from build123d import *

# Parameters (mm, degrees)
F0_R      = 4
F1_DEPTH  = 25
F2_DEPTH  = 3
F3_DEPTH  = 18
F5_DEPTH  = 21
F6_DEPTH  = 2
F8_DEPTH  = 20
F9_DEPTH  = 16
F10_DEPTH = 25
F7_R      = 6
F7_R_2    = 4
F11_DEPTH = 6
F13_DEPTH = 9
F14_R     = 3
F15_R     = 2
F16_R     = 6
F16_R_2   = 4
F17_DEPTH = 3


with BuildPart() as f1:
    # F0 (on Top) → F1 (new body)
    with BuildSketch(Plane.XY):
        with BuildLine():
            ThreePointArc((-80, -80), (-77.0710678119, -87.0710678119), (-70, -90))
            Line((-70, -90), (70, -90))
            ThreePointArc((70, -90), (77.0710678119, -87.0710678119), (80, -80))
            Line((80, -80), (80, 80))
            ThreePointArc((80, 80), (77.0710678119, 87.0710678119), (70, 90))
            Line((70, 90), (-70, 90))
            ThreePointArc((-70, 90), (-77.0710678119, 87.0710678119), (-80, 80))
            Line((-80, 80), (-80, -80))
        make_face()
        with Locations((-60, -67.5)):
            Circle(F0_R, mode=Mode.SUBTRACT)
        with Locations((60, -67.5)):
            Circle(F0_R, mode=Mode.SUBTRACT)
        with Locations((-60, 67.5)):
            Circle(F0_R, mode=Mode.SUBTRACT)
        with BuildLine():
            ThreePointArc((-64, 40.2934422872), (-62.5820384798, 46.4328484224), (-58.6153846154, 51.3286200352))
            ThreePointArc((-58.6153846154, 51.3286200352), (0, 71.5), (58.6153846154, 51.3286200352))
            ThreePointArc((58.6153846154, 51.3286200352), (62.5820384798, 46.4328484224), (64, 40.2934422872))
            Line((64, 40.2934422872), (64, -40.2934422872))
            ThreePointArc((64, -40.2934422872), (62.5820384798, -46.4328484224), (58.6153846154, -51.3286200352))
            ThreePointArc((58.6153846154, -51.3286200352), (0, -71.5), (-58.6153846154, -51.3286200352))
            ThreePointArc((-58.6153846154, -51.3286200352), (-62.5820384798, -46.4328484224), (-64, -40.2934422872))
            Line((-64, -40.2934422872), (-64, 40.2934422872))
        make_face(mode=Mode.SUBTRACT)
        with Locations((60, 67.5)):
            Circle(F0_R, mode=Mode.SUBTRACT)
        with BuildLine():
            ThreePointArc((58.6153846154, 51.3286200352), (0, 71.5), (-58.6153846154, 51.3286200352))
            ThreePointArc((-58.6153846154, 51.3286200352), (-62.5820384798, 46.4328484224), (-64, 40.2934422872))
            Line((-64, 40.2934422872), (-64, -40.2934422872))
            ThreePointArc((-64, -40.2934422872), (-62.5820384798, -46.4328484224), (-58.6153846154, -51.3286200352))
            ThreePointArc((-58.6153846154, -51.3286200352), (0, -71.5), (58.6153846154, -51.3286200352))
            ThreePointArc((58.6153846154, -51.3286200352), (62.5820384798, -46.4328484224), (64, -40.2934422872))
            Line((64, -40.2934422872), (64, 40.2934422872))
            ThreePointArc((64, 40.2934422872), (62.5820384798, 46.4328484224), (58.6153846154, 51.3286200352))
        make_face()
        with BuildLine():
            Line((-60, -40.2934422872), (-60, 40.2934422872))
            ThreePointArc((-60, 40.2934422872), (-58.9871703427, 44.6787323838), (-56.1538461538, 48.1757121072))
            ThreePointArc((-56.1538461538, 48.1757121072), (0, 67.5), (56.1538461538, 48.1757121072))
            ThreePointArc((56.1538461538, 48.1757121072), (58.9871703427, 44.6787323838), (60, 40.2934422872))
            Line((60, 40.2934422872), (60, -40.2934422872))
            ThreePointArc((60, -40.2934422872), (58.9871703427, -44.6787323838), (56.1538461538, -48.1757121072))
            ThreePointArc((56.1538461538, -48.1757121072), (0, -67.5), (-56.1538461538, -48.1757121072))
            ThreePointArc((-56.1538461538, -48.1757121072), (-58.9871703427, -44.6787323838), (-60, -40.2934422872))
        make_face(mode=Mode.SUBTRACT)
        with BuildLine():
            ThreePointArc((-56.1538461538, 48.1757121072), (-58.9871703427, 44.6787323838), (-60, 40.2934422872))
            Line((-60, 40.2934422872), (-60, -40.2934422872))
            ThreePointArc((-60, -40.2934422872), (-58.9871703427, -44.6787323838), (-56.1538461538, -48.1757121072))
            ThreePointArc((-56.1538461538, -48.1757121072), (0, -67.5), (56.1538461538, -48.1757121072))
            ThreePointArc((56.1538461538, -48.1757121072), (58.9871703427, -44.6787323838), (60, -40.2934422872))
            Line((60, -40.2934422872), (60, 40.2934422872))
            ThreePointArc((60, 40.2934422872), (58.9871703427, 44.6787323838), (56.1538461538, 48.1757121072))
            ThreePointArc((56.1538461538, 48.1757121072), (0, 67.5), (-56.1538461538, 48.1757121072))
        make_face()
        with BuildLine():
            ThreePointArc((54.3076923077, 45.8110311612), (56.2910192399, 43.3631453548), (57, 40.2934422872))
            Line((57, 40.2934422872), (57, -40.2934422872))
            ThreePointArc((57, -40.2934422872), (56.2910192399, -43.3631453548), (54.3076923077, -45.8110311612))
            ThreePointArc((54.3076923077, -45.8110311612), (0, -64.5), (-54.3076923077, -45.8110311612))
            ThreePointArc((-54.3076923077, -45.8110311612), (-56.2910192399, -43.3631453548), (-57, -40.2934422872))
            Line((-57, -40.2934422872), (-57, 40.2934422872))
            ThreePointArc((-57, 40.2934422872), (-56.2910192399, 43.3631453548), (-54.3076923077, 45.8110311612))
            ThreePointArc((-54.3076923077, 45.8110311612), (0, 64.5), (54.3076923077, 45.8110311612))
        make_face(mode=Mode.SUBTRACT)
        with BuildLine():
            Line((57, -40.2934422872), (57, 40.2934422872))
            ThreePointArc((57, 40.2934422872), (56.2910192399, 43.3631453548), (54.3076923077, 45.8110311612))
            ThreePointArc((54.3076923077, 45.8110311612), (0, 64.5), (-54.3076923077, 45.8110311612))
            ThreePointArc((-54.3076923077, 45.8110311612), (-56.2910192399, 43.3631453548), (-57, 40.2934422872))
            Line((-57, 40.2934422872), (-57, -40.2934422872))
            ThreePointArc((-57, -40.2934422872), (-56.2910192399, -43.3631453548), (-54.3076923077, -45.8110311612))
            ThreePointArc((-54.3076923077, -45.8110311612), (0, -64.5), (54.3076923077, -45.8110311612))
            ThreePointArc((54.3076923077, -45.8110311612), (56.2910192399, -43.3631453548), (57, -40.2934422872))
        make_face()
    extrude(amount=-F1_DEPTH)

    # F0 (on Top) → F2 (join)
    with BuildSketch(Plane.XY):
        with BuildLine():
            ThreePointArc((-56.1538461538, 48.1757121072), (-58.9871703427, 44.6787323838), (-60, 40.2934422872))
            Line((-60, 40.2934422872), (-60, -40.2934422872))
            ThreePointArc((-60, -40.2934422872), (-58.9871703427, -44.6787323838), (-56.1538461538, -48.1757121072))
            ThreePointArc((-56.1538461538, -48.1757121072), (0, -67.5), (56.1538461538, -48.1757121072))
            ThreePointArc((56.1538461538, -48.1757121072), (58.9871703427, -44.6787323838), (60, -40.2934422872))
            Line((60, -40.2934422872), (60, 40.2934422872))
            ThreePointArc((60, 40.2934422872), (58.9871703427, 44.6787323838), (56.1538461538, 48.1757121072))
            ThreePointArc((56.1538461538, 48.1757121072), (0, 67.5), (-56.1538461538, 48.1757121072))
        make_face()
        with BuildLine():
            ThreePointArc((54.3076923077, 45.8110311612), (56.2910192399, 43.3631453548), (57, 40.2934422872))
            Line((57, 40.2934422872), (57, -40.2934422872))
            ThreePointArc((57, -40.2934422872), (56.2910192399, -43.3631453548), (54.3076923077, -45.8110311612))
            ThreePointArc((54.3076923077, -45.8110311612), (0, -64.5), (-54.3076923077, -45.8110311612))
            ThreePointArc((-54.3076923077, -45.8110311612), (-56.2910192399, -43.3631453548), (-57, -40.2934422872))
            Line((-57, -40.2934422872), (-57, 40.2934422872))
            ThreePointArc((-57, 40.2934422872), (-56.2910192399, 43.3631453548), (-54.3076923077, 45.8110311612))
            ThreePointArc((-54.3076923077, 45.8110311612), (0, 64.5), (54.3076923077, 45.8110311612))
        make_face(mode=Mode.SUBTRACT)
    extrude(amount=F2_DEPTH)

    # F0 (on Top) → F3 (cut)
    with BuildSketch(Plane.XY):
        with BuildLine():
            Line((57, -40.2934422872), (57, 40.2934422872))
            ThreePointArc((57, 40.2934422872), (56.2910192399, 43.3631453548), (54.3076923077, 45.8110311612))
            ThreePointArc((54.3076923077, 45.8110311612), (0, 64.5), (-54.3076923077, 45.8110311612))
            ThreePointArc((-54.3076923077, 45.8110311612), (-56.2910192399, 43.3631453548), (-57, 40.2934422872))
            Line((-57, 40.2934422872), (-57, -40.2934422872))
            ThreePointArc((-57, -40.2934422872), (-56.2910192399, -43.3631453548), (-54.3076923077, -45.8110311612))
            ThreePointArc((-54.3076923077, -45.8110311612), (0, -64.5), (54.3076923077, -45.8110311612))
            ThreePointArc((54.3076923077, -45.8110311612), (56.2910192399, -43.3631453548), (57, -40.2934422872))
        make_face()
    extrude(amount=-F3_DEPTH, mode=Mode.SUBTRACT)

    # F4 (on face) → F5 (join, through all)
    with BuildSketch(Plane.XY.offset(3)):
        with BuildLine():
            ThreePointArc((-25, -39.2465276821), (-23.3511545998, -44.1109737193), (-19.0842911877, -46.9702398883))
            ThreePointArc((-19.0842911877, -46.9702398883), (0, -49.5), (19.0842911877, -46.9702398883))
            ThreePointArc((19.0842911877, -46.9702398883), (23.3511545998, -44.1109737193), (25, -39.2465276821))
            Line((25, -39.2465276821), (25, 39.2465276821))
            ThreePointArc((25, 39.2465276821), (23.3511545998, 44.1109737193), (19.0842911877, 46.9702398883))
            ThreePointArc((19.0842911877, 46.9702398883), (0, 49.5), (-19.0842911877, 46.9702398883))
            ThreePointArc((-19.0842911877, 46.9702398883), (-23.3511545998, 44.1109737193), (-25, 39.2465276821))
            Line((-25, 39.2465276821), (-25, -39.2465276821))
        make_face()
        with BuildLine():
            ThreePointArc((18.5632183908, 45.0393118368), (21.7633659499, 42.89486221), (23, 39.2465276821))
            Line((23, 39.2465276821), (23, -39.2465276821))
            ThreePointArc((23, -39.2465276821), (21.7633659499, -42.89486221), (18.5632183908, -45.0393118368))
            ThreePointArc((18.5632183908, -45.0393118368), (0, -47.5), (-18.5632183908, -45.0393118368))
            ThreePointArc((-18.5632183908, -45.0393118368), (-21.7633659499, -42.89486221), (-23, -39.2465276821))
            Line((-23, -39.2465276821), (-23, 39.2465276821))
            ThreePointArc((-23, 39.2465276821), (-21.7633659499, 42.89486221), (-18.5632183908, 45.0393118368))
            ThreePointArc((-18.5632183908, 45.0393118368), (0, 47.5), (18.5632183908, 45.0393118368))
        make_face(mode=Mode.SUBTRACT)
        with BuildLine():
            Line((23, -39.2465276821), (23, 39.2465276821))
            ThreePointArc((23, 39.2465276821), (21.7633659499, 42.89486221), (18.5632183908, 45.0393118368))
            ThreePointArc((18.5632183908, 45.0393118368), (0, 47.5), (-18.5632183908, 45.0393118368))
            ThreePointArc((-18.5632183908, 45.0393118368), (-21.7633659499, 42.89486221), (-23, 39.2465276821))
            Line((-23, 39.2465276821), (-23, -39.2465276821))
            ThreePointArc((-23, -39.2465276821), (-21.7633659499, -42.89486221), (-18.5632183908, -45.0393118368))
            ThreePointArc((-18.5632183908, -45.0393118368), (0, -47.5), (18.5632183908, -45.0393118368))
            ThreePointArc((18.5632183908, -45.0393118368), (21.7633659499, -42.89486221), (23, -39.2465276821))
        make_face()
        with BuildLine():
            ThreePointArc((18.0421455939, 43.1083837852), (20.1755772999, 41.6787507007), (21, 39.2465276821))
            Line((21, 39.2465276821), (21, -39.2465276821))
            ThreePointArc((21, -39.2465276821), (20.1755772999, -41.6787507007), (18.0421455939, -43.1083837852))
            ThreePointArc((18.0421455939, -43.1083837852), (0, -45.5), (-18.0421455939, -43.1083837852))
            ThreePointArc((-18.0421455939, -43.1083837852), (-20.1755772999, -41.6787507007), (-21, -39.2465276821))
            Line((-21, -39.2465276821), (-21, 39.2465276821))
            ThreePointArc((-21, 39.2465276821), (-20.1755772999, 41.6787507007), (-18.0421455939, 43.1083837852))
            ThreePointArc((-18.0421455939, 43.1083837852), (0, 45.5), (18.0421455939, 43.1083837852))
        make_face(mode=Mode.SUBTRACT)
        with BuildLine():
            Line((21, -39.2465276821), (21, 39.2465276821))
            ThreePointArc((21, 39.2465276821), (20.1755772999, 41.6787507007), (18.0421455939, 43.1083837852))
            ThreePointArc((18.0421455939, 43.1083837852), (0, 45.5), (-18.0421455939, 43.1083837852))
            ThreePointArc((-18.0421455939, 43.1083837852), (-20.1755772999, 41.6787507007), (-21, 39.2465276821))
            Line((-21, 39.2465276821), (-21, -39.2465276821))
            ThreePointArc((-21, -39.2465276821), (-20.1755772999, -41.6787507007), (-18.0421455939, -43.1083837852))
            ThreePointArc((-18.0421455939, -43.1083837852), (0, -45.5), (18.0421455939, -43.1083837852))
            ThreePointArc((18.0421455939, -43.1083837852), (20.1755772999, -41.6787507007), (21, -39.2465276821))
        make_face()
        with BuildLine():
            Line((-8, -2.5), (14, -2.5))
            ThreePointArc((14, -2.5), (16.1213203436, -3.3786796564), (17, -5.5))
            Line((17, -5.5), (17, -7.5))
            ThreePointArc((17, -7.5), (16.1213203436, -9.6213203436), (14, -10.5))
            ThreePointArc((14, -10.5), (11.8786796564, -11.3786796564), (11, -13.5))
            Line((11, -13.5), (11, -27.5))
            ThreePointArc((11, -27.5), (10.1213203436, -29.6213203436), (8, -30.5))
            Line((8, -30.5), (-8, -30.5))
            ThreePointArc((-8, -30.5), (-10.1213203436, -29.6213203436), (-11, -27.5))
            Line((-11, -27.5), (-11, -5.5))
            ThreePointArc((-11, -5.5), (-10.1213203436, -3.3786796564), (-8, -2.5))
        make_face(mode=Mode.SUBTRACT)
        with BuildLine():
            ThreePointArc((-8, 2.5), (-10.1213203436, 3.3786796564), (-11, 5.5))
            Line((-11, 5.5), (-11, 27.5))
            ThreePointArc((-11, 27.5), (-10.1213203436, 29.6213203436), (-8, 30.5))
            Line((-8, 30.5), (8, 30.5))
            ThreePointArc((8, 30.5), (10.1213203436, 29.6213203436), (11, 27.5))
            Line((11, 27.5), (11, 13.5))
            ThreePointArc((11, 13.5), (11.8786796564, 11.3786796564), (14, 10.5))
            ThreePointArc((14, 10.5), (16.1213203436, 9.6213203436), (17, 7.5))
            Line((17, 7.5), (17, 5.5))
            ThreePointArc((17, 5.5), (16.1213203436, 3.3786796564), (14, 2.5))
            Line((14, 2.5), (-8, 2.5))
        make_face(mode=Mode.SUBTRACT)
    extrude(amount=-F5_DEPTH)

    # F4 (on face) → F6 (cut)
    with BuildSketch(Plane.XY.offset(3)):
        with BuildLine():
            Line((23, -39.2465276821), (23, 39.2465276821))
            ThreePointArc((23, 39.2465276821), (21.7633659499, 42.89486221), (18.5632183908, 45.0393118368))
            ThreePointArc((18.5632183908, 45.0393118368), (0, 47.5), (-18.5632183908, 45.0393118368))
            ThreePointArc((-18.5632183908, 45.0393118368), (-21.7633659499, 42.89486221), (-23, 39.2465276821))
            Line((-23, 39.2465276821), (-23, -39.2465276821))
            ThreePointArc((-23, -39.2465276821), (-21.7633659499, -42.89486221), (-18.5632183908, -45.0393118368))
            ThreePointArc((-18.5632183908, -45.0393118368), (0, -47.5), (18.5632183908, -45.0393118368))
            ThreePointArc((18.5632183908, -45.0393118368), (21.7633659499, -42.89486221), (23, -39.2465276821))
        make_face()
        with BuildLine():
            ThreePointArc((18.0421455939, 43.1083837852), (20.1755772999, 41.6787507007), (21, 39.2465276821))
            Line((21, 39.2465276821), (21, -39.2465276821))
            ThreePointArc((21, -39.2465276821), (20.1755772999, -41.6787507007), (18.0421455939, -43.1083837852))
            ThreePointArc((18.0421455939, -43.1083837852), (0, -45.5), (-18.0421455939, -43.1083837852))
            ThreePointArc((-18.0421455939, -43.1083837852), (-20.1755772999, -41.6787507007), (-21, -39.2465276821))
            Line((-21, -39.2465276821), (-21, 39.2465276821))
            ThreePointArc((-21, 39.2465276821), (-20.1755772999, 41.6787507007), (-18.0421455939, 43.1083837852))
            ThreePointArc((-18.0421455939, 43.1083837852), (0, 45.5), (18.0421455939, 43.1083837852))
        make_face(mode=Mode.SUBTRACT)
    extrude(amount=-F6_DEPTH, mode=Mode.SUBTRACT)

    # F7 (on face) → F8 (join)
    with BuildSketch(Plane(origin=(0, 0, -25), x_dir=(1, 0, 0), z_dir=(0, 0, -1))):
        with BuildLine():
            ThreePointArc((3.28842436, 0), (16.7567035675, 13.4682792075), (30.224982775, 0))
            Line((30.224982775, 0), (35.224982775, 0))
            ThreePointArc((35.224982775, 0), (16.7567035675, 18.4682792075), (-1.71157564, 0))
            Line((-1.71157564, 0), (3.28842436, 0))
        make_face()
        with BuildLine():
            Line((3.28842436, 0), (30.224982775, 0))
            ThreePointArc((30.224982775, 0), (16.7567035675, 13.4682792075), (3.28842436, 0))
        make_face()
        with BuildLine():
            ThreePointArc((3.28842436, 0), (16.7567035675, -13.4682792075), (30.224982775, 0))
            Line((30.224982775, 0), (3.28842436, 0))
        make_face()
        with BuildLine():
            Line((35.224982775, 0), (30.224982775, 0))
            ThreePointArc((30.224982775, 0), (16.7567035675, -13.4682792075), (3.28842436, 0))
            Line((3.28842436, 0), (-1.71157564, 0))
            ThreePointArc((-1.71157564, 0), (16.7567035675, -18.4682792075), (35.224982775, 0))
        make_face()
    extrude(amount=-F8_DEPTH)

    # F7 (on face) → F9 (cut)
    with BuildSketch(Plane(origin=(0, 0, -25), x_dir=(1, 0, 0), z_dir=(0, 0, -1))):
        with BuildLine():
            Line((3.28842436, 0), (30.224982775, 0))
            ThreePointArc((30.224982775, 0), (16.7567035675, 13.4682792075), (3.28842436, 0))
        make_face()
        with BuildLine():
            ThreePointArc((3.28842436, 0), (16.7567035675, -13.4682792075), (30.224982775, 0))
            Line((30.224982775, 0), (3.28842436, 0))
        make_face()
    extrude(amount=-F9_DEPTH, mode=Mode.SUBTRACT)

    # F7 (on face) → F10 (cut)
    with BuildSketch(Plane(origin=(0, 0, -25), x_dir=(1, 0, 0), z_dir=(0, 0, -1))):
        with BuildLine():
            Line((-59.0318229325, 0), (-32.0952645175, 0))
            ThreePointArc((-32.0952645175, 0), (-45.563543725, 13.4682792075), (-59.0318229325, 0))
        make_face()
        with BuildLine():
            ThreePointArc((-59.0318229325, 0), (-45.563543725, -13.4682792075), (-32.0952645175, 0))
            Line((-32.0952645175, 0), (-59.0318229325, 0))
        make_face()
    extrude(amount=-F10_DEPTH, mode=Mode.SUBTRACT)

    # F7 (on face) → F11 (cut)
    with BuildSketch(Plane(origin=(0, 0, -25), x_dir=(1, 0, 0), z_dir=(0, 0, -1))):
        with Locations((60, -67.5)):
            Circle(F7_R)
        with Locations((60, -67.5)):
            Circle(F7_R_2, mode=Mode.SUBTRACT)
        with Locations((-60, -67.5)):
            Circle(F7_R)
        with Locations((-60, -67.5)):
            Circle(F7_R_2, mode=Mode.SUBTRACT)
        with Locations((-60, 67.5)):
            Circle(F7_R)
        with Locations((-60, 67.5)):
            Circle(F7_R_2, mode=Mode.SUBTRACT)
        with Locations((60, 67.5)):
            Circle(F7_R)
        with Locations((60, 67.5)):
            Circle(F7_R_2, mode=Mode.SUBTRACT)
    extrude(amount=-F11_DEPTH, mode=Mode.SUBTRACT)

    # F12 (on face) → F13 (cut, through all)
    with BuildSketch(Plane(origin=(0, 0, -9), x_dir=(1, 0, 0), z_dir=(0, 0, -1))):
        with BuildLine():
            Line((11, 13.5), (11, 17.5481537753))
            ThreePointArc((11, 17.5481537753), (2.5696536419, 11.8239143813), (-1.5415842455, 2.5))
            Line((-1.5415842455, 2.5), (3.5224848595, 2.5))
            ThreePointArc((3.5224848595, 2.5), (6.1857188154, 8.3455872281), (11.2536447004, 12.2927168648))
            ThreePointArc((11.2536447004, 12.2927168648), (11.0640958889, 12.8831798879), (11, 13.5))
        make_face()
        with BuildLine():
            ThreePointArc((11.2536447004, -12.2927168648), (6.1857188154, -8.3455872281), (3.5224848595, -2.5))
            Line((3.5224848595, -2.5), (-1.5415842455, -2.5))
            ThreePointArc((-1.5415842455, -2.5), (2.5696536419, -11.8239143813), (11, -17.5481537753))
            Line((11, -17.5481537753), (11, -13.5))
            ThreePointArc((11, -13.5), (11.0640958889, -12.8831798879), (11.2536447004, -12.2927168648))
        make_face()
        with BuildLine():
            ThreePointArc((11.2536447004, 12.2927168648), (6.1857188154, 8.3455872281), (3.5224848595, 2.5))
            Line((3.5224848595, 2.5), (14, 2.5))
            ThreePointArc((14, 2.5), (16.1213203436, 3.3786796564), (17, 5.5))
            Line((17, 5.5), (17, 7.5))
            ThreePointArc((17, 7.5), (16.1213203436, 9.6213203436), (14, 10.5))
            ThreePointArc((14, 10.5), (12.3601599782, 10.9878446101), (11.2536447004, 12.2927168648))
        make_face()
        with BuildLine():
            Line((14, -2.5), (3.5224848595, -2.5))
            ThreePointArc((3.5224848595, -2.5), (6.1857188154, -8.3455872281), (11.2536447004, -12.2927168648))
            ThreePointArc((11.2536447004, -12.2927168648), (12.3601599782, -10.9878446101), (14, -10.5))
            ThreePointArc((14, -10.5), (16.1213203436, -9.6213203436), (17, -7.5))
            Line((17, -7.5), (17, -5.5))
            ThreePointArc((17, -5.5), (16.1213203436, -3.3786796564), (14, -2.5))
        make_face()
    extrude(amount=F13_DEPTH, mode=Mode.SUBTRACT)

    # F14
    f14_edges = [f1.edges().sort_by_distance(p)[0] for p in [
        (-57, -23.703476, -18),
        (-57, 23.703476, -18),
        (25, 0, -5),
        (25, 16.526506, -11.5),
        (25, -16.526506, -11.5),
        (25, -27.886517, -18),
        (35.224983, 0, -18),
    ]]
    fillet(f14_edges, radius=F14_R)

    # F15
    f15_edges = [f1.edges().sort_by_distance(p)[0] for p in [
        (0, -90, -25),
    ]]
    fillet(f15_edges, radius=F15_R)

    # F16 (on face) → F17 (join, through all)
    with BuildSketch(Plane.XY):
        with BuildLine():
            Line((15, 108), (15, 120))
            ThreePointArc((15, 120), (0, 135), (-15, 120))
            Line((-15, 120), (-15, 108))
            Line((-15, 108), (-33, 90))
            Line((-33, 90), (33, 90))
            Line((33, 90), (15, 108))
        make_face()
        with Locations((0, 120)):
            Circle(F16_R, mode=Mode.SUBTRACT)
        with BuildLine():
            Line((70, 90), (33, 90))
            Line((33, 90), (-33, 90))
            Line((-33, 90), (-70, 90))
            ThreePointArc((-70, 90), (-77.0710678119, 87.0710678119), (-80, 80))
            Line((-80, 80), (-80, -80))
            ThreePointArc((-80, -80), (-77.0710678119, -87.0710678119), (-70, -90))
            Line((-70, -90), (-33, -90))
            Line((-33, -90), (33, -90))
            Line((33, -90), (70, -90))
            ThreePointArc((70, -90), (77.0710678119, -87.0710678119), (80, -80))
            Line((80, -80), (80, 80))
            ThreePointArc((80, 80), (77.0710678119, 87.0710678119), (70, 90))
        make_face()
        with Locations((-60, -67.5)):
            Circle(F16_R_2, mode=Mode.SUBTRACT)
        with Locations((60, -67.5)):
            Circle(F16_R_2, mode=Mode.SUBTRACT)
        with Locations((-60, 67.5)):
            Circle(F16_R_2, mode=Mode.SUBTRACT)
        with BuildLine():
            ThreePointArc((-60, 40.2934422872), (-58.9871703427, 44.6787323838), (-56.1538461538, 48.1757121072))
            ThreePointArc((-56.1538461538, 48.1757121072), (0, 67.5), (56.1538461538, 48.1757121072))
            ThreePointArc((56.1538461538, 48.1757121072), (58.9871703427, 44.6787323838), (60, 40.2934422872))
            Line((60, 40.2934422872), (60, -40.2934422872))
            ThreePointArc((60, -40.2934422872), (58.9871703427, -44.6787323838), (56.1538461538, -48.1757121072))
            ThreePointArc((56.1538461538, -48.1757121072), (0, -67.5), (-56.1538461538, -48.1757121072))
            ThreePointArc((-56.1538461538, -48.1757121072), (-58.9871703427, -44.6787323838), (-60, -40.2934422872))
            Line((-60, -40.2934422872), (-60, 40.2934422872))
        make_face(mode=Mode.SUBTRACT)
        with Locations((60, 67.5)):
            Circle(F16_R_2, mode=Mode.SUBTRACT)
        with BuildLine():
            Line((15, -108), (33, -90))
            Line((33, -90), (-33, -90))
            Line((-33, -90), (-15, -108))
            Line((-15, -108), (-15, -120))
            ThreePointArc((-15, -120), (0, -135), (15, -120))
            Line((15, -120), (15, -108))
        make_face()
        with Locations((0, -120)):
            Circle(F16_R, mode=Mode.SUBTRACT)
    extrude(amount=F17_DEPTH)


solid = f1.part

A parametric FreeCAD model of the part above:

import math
import FreeCAD as App
import Part
import Sketcher

V = App.Vector


def edges_at(feature, points):
    """Names of the edges that pass closest to the given points."""
    edges = feature.Shape.Edges
    near = lambda p: min(range(len(edges)), key=lambda i: edges[i].distToShape(Part.Vertex(*p))[0])
    return sorted({f"Edge{near(p) + 1}" for p in points})

doc = App.newDocument("Part")
body = doc.addObject("PartDesign::Body", "Body")

sketch1 = body.newObject("Sketcher::SketchObject", "Sketch")
sketch1.AttachmentSupport = (doc.getObject("XY_Plane"), [""])
sketch1.MapMode = "FlatFace"
sketch1.addGeometry([
    Part.ArcOfCircle(Part.Circle(V(-70, -80, 0), V(0, 0, 1), 10), math.radians(180), math.radians(270)),
    Part.LineSegment(V(-70, -90, 0), V(70, -90, 0)),
    Part.ArcOfCircle(Part.Circle(V(70, -80, 0), V(0, 0, 1), 10), math.radians(-90), math.radians(0)),
    Part.LineSegment(V(80, -80, 0), V(80, 80, 0)),
    Part.ArcOfCircle(Part.Circle(V(70, 80, 0), V(0, 0, 1), 10), math.radians(0), math.radians(90)),
    Part.LineSegment(V(70, 90, 0), V(-70, 90, 0)),
    Part.ArcOfCircle(Part.Circle(V(-70, 80, 0), V(0, 0, 1), 10), math.radians(90), math.radians(180)),
    Part.LineSegment(V(-80, 80, 0), V(-80, -80, 0)),
    Part.Circle(V(-60, -67.5, 0), V(0, 0, 1), 4),
    Part.Circle(V(60, -67.5, 0), V(0, 0, 1), 4),
    Part.Circle(V(-60, 67.5, 0), V(0, 0, 1), 4),
    Part.Circle(V(60, 67.5, 0), V(0, 0, 1), 4),
], False)
sketch1.addConstraint([
    Sketcher.Constraint("Tangent", 0, 2, 1, 1),
    Sketcher.Constraint("Tangent", 1, 2, 2, 1),
    Sketcher.Constraint("Tangent", 2, 2, 3, 1),
    Sketcher.Constraint("Tangent", 3, 2, 4, 1),
    Sketcher.Constraint("Tangent", 4, 2, 5, 1),
    Sketcher.Constraint("Tangent", 5, 2, 6, 1),
    Sketcher.Constraint("Tangent", 6, 2, 7, 1),
    Sketcher.Constraint("Tangent", 7, 2, 0, 1),
    Sketcher.Constraint("Horizontal", 1),
    Sketcher.Constraint("Vertical", 3),
    Sketcher.Constraint("Horizontal", 5),
    Sketcher.Constraint("Vertical", 7),
    Sketcher.Constraint("Equal", 0, 2),
    Sketcher.Constraint("Equal", 2, 4),
    Sketcher.Constraint("Equal", 4, 6),
    Sketcher.Constraint("Equal", 8, 9),
    Sketcher.Constraint("Equal", 9, 10),
    Sketcher.Constraint("Equal", 10, 11),
    Sketcher.Constraint("Symmetric", 0, 3, 4, 3, -1, 1),
    Sketcher.Constraint("Symmetric", 9, 3, 10, 3, -1, 1),
    Sketcher.Constraint("Symmetric", 8, 3, 11, 3, -1, 1),
    Sketcher.Constraint("Symmetric", 8, 3, 9, 3, -2),
    Sketcher.Constraint("Diameter", 8, 8.0),
    Sketcher.Constraint("Radius", 0, 10.0),
    Sketcher.Constraint("DistanceX", 1, 1, 1, 2, 140.0),
    Sketcher.Constraint("DistanceY", 3, 1, 3, 2, 160.0),
    Sketcher.Constraint("DistanceX", 8, 3, -1, 1, 60.0),
    Sketcher.Constraint("DistanceY", 8, 3, 10, 3, 135.0),
])
pad1 = body.newObject("PartDesign::Pad", "Pad")
pad1.Profile = sketch1
pad1.Length = 25
pad1.Reversed = True

sketch2 = body.newObject("Sketcher::SketchObject", "Sketch001")
sketch2.AttachmentSupport = (doc.getObject("XY_Plane"), [""])
sketch2.MapMode = "FlatFace"
sketch2.addGeometry([
    Part.ArcOfCircle(Part.Circle(V(-50, 40, 0), V(0, 0, 1), 10), math.radians(128), math.radians(180)),
    Part.LineSegment(V(-60, 40, 0), V(-60, -40, 0)),
    Part.ArcOfCircle(Part.Circle(V(-50, -40, 0), V(0, 0, 1), 10), math.radians(180), math.radians(232)),
    Part.ArcOfCircle(Part.Circle(V(0, 24, 0), V(0, 0, 1), 91), math.radians(-128), math.radians(-52)),
    Part.ArcOfCircle(Part.Circle(V(50, -40, 0), V(0, 0, 1), 10), math.radians(-52), math.radians(0)),
    Part.LineSegment(V(60, -40, 0), V(60, 40, 0)),
    Part.ArcOfCircle(Part.Circle(V(50, 40, 0), V(0, 0, 1), 10), math.radians(0), math.radians(52)),
    Part.ArcOfCircle(Part.Circle(V(0, -24, 0), V(0, 0, 1), 91), math.radians(52), math.radians(128)),
    Part.ArcOfCircle(Part.Circle(V(0, -24, 0), V(0, 0, 1), 88), math.radians(52), math.radians(128)),
    Part.ArcOfCircle(Part.Circle(V(50, 40, 0), V(0, 0, 1), 7), math.radians(0), math.radians(52)),
    Part.LineSegment(V(57, 40, 0), V(57, -40, 0)),
    Part.ArcOfCircle(Part.Circle(V(50, -40, 0), V(0, 0, 1), 7), math.radians(-52), math.radians(0)),
    Part.ArcOfCircle(Part.Circle(V(0, 24, 0), V(0, 0, 1), 88), math.radians(-128), math.radians(-52)),
    Part.ArcOfCircle(Part.Circle(V(-50, -40, 0), V(0, 0, 1), 7), math.radians(180), math.radians(232)),
    Part.LineSegment(V(-57, -40, 0), V(-57, 40, 0)),
    Part.ArcOfCircle(Part.Circle(V(-50, 40, 0), V(0, 0, 1), 7), math.radians(128), math.radians(180)),
], False)
sketch2.addConstraint([
    Sketcher.Constraint("Tangent", 0, 2, 1, 1),
    Sketcher.Constraint("Tangent", 1, 2, 2, 1),
    Sketcher.Constraint("Tangent", 2, 2, 3, 1),
    Sketcher.Constraint("Tangent", 3, 2, 4, 1),
    Sketcher.Constraint("Tangent", 4, 2, 5, 1),
    Sketcher.Constraint("Tangent", 5, 2, 6, 1),
    Sketcher.Constraint("Tangent", 6, 2, 7, 1),
    Sketcher.Constraint("Tangent", 7, 2, 0, 1),
    Sketcher.Constraint("Tangent", 8, 1, 9, 2),
    Sketcher.Constraint("Tangent", 9, 1, 10, 1),
    Sketcher.Constraint("Tangent", 10, 2, 11, 2),
    Sketcher.Constraint("Tangent", 11, 1, 12, 2),
    Sketcher.Constraint("Tangent", 12, 1, 13, 2),
    Sketcher.Constraint("Tangent", 13, 1, 14, 1),
    Sketcher.Constraint("Tangent", 14, 2, 15, 2),
    Sketcher.Constraint("Tangent", 15, 1, 8, 2),
    Sketcher.Constraint("Vertical", 1),
    Sketcher.Constraint("Vertical", 5),
    Sketcher.Constraint("Vertical", 10),
    Sketcher.Constraint("Vertical", 14),
    Sketcher.Constraint("Coincident", 8, 3, 7, 3),
    Sketcher.Constraint("Coincident", 9, 3, 6, 3),
    Sketcher.Constraint("Coincident", 11, 3, 4, 3),
    Sketcher.Constraint("Coincident", 12, 3, 3, 3),
    Sketcher.Constraint("Coincident", 13, 3, 2, 3),
    Sketcher.Constraint("Equal", 0, 2),
    Sketcher.Constraint("Equal", 2, 4),
    Sketcher.Constraint("Equal", 4, 6),
    Sketcher.Constraint("Equal", 3, 7),
    Sketcher.Constraint("Equal", 13, 15),
    Sketcher.Constraint("Symmetric", 0, 3, 4, 3, -1, 1),
    Sketcher.Constraint("Symmetric", 3, 3, 7, 3, -1),
    Sketcher.Constraint("Radius", 0, 10.0),
    Sketcher.Constraint("Radius", 9, 7.0),
    Sketcher.Constraint("Radius", 3, 91.25),
    Sketcher.Constraint("DistanceX", 0, 3, -1, 1, 50.0),
    Sketcher.Constraint("DistanceY", 7, 3, 3, 3, 47.5),
])
pad2 = body.newObject("PartDesign::Pad", "Pad001")
pad2.Profile = sketch2
pad2.Length = 3

sketch3 = body.newObject("Sketcher::SketchObject", "Sketch002")
sketch3.AttachmentSupport = (doc.getObject("XY_Plane"), [""])
sketch3.MapMode = "FlatFace"
sketch3.addGeometry([
    Part.LineSegment(V(57, -40, 0), V(57, 40, 0)),
    Part.ArcOfCircle(Part.Circle(V(50, 40, 0), V(0, 0, 1), 7), math.radians(0), math.radians(52)),
    Part.ArcOfCircle(Part.Circle(V(0, -24, 0), V(0, 0, 1), 88), math.radians(52), math.radians(128)),
    Part.ArcOfCircle(Part.Circle(V(-50, 40, 0), V(0, 0, 1), 7), math.radians(128), math.radians(180)),
    Part.LineSegment(V(-57, 40, 0), V(-57, -40, 0)),
    Part.ArcOfCircle(Part.Circle(V(-50, -40, 0), V(0, 0, 1), 7), math.radians(180), math.radians(232)),
    Part.ArcOfCircle(Part.Circle(V(0, 24, 0), V(0, 0, 1), 88), math.radians(-128), math.radians(-52)),
    Part.ArcOfCircle(Part.Circle(V(50, -40, 0), V(0, 0, 1), 7), math.radians(-52), math.radians(0)),
], False)
sketch3.addConstraint([
    Sketcher.Constraint("Tangent", 0, 2, 1, 1),
    Sketcher.Constraint("Tangent", 1, 2, 2, 1),
    Sketcher.Constraint("Tangent", 2, 2, 3, 1),
    Sketcher.Constraint("Tangent", 3, 2, 4, 1),
    Sketcher.Constraint("Tangent", 4, 2, 5, 1),
    Sketcher.Constraint("Tangent", 5, 2, 6, 1),
    Sketcher.Constraint("Tangent", 6, 2, 7, 1),
    Sketcher.Constraint("Tangent", 7, 2, 0, 1),
    Sketcher.Constraint("Vertical", 0),
    Sketcher.Constraint("Vertical", 4),
    Sketcher.Constraint("Equal", 1, 3),
    Sketcher.Constraint("Equal", 3, 5),
    Sketcher.Constraint("Equal", 2, 6),
    Sketcher.Constraint("Equal", 5, 7),
    Sketcher.Constraint("Symmetric", 1, 3, 5, 3, -1, 1),
    Sketcher.Constraint("Symmetric", 2, 3, 6, 3, -1),
    Sketcher.Constraint("Radius", 1, 7.0),
    Sketcher.Constraint("Radius", 2, 88.25),
    Sketcher.Constraint("DistanceX", -1, 1, 1, 3, 50.0),
    Sketcher.Constraint("DistanceY", 2, 3, 6, 3, 47.5),
])
pocket1 = body.newObject("PartDesign::Pocket", "Pocket")
pocket1.Profile = sketch3
pocket1.Length = 18

sketch4 = body.newObject("Sketcher::SketchObject", "Sketch003")
sketch4.AttachmentSupport = (doc.getObject("XY_Plane"), [""])
sketch4.MapMode = "FlatFace"
sketch4.AttachmentOffset = App.Placement(V(0, 0, 3), App.Rotation())
sketch4.addGeometry([
    Part.ArcOfCircle(Part.Circle(V(-17, -39.2, 0), V(0, 0, 1), 8), math.radians(180), math.radians(255)),
    Part.ArcOfCircle(Part.Circle(V(0, 23.7, 0), V(0, 0, 1), 73.2), math.radians(-105), math.radians(-75)),
    Part.ArcOfCircle(Part.Circle(V(17, -39.2, 0), V(0, 0, 1), 8), math.radians(-75), math.radians(0)),
    Part.LineSegment(V(25, -39.2, 0), V(25, 39.2, 0)),
    Part.ArcOfCircle(Part.Circle(V(17, 39.2, 0), V(0, 0, 1), 8), math.radians(0), math.radians(75)),
    Part.ArcOfCircle(Part.Circle(V(0, -23.7, 0), V(0, 0, 1), 73.2), math.radians(75), math.radians(105)),
    Part.ArcOfCircle(Part.Circle(V(-17, 39.2, 0), V(0, 0, 1), 8), math.radians(105), math.radians(180)),
    Part.LineSegment(V(-25, 39.2, 0), V(-25, -39.2, 0)),
    Part.ArcOfCircle(Part.Circle(V(-8, -5.5, 0), V(0, 0, 1), 3), math.radians(90), math.radians(180)),
    Part.LineSegment(V(-8, -2.5, 0), V(14, -2.5, 0)),
    Part.ArcOfCircle(Part.Circle(V(14, -5.5, 0), V(0, 0, 1), 3), math.radians(0), math.radians(90)),
    Part.LineSegment(V(17, -5.5, 0), V(17, -7.5, 0)),
    Part.ArcOfCircle(Part.Circle(V(14, -7.5, 0), V(0, 0, 1), 3), math.radians(-90), math.radians(0)),
    Part.ArcOfCircle(Part.Circle(V(14, -13.5, 0), V(0, 0, 1), 3), math.radians(90), math.radians(180)),
    Part.LineSegment(V(11, -13.5, 0), V(11, -27.5, 0)),
    Part.ArcOfCircle(Part.Circle(V(8, -27.5, 0), V(0, 0, 1), 3), math.radians(-90), math.radians(0)),
    Part.LineSegment(V(8, -30.5, 0), V(-8, -30.5, 0)),
    Part.ArcOfCircle(Part.Circle(V(-8, -27.5, 0), V(0, 0, 1), 3), math.radians(180), math.radians(270)),
    Part.LineSegment(V(-11, -27.5, 0), V(-11, -5.5, 0)),
    Part.LineSegment(V(14, 2.5, 0), V(-8, 2.5, 0)),
    Part.ArcOfCircle(Part.Circle(V(-8, 5.5, 0), V(0, 0, 1), 3), math.radians(180), math.radians(270)),
    Part.LineSegment(V(-11, 5.5, 0), V(-11, 27.5, 0)),
    Part.ArcOfCircle(Part.Circle(V(-8, 27.5, 0), V(0, 0, 1), 3), math.radians(90), math.radians(180)),
    Part.LineSegment(V(-8, 30.5, 0), V(8, 30.5, 0)),
    Part.ArcOfCircle(Part.Circle(V(8, 27.5, 0), V(0, 0, 1), 3), math.radians(0), math.radians(90)),
    Part.LineSegment(V(11, 27.5, 0), V(11, 13.5, 0)),
    Part.ArcOfCircle(Part.Circle(V(14, 13.5, 0), V(0, 0, 1), 3), math.radians(180), math.radians(270)),
    Part.ArcOfCircle(Part.Circle(V(14, 7.5, 0), V(0, 0, 1), 3), math.radians(0), math.radians(90)),
    Part.LineSegment(V(17, 7.5, 0), V(17, 5.5, 0)),
    Part.ArcOfCircle(Part.Circle(V(14, 5.5, 0), V(0, 0, 1), 3), math.radians(-90), math.radians(0)),
], False)
sketch4.addConstraint([
    Sketcher.Constraint("Tangent", 0, 2, 1, 1),
    Sketcher.Constraint("Tangent", 1, 2, 2, 1),
    Sketcher.Constraint("Tangent", 2, 2, 3, 1),
    Sketcher.Constraint("Tangent", 3, 2, 4, 1),
    Sketcher.Constraint("Tangent", 4, 2, 5, 1),
    Sketcher.Constraint("Tangent", 5, 2, 6, 1),
    Sketcher.Constraint("Tangent", 6, 2, 7, 1),
    Sketcher.Constraint("Tangent", 7, 2, 0, 1),
    Sketcher.Constraint("Tangent", 8, 1, 9, 1),
    Sketcher.Constraint("Tangent", 9, 2, 10, 2),
    Sketcher.Constraint("Tangent", 10, 1, 11, 1),
    Sketcher.Constraint("Tangent", 11, 2, 12, 2),
    Sketcher.Constraint("Tangent", 12, 1, 13, 1),
    Sketcher.Constraint("Tangent", 13, 2, 14, 1),
    Sketcher.Constraint("Tangent", 14, 2, 15, 2),
    Sketcher.Constraint("Tangent", 15, 1, 16, 1),
    Sketcher.Constraint("Tangent", 16, 2, 17, 2),
    Sketcher.Constraint("Tangent", 17, 1, 18, 1),
    Sketcher.Constraint("Tangent", 18, 2, 8, 2),
    Sketcher.Constraint("Tangent", 19, 2, 20, 2),
    Sketcher.Constraint("Tangent", 20, 1, 21, 1),
    Sketcher.Constraint("Tangent", 21, 2, 22, 2),
    Sketcher.Constraint("Tangent", 22, 1, 23, 1),
    Sketcher.Constraint("Tangent", 23, 2, 24, 2),
    Sketcher.Constraint("Tangent", 24, 1, 25, 1),
    Sketcher.Constraint("Tangent", 25, 2, 26, 1),
    Sketcher.Constraint("Tangent", 26, 2, 27, 2),
    Sketcher.Constraint("Tangent", 27, 1, 28, 1),
    Sketcher.Constraint("Tangent", 28, 2, 29, 2),
    Sketcher.Constraint("Tangent", 29, 1, 19, 1),
    Sketcher.Constraint("Vertical", 3),
    Sketcher.Constraint("Vertical", 7),
    Sketcher.Constraint("Horizontal", 9),
    Sketcher.Constraint("Vertical", 11),
    Sketcher.Constraint("Vertical", 14),
    Sketcher.Constraint("Horizontal", 16),
    Sketcher.Constraint("Vertical", 18),
    Sketcher.Constraint("Horizontal", 19),
    Sketcher.Constraint("Vertical", 21),
    Sketcher.Constraint("Horizontal", 23),
    Sketcher.Constraint("Vertical", 25),
    Sketcher.Constraint("Vertical", 28),
    Sketcher.Constraint("Equal", 0, 2),
    Sketcher.Constraint("Equal", 2, 4),
    Sketcher.Constraint("Equal", 1, 5),
    Sketcher.Constraint("Equal", 4, 6),
    Sketcher.Constraint("Equal", 8, 10),
    Sketcher.Constraint("Equal", 10, 12),
    Sketcher.Constraint("Equal", 12, 13),
    Sketcher.Constraint("Equal", 13, 15),
    Sketcher.Constraint("Equal", 15, 17),
    Sketcher.Constraint("Equal", 17, 20),
    Sketcher.Constraint("Equal", 20, 22),
    Sketcher.Constraint("Equal", 22, 24),
    Sketcher.Constraint("Equal", 24, 26),
    Sketcher.Constraint("Equal", 26, 27),
    Sketcher.Constraint("Equal", 27, 29),
    Sketcher.Constraint("Symmetric", 0, 3, 4, 3, -1, 1),
    Sketcher.Constraint("Symmetric", 15, 3, 22, 3, -1, 1),
    Sketcher.Constraint("Symmetric", 1, 3, 5, 3, -1),
    Sketcher.Constraint("Symmetric", 8, 3, 20, 3, -1),
    Sketcher.Constraint("Symmetric", 13, 3, 26, 3, -1),
    Sketcher.Constraint("Vertical", 12, 3, 13, 3),
    Sketcher.Constraint("Vertical", 26, 3, 27, 3),
    Sketcher.Constraint("Vertical", 4, 3, 10, 1),
    Sketcher.Constraint("Equal", 19, 18),
    Sketcher.Constraint("Radius", 0, 8.0),
    Sketcher.Constraint("Radius", 8, 3.0),
    Sketcher.Constraint("DistanceX", 9, 1, 9, 2, 22.0),
    Sketcher.Constraint("DistanceY", 11, 2, 11, 1, 2.0),
    Sketcher.Constraint("Radius", 1, 73.25),
    Sketcher.Constraint("DistanceY", 8, 3, 20, 3, 11.0),
    Sketcher.Constraint("DistanceY", 5, 3, 1, 3, 47.5),
])
pad3 = body.newObject("PartDesign::Pad", "Pad002")
pad3.Profile = sketch4
pad3.Type = "UpToLast"
pad3.Reversed = True

sketch5 = body.newObject("Sketcher::SketchObject", "Sketch004")
sketch5.AttachmentSupport = (doc.getObject("XY_Plane"), [""])
sketch5.MapMode = "FlatFace"
sketch5.AttachmentOffset = App.Placement(V(0, 0, 3), App.Rotation())
sketch5.addGeometry([
    Part.LineSegment(V(23, -39.2, 0), V(23, 39.2, 0)),
    Part.ArcOfCircle(Part.Circle(V(17, 39.2, 0), V(0, 0, 1), 6), math.radians(0), math.radians(75)),
    Part.ArcOfCircle(Part.Circle(V(0, -23.8, 0), V(0, 0, 1), 71.3), math.radians(75), math.radians(105)),
    Part.ArcOfCircle(Part.Circle(V(-17, 39.2, 0), V(0, 0, 1), 6), math.radians(105), math.radians(180)),
    Part.LineSegment(V(-23, 39.2, 0), V(-23, -39.2, 0)),
    Part.ArcOfCircle(Part.Circle(V(-17, -39.2, 0), V(0, 0, 1), 6), math.radians(180), math.radians(255)),
    Part.ArcOfCircle(Part.Circle(V(0, 23.8, 0), V(0, 0, 1), 71.3), math.radians(-105), math.radians(-75)),
    Part.ArcOfCircle(Part.Circle(V(17, -39.2, 0), V(0, 0, 1), 6), math.radians(-75), math.radians(0)),
    Part.ArcOfCircle(Part.Circle(V(0, -23.8, 0), V(0, 0, 1), 69.2), math.radians(75), math.radians(105)),
    Part.ArcOfCircle(Part.Circle(V(17, 39.2, 0), V(0, 0, 1), 4), math.radians(0), math.radians(75)),
    Part.LineSegment(V(21, 39.2, 0), V(21, -39.2, 0)),
    Part.ArcOfCircle(Part.Circle(V(17, -39.2, 0), V(0, 0, 1), 4), math.radians(-75), math.radians(0)),
    Part.ArcOfCircle(Part.Circle(V(0, 23.8, 0), V(0, 0, 1), 69.2), math.radians(-105), math.radians(-75)),
    Part.ArcOfCircle(Part.Circle(V(-17, -39.2, 0), V(0, 0, 1), 4), math.radians(180), math.radians(255)),
    Part.LineSegment(V(-21, -39.2, 0), V(-21, 39.2, 0)),
    Part.ArcOfCircle(Part.Circle(V(-17, 39.2, 0), V(0, 0, 1), 4), math.radians(105), math.radians(180)),
], False)
sketch5.addConstraint([
    Sketcher.Constraint("Tangent", 0, 2, 1, 1),
    Sketcher.Constraint("Tangent", 1, 2, 2, 1),
    Sketcher.Constraint("Tangent", 2, 2, 3, 1),
    Sketcher.Constraint("Tangent", 3, 2, 4, 1),
    Sketcher.Constraint("Tangent", 4, 2, 5, 1),
    Sketcher.Constraint("Tangent", 5, 2, 6, 1),
    Sketcher.Constraint("Tangent", 6, 2, 7, 1),
    Sketcher.Constraint("Tangent", 7, 2, 0, 1),
    Sketcher.Constraint("Tangent", 8, 1, 9, 2),
    Sketcher.Constraint("Tangent", 9, 1, 10, 1),
    Sketcher.Constraint("Tangent", 10, 2, 11, 2),
    Sketcher.Constraint("Tangent", 11, 1, 12, 2),
    Sketcher.Constraint("Tangent", 12, 1, 13, 2),
    Sketcher.Constraint("Tangent", 13, 1, 14, 1),
    Sketcher.Constraint("Tangent", 14, 2, 15, 2),
    Sketcher.Constraint("Tangent", 15, 1, 8, 2),
    Sketcher.Constraint("Vertical", 0),
    Sketcher.Constraint("Vertical", 4),
    Sketcher.Constraint("Vertical", 10),
    Sketcher.Constraint("Vertical", 14),
    Sketcher.Constraint("Coincident", 8, 3, 2, 3),
    Sketcher.Constraint("Coincident", 9, 3, 1, 3),
    Sketcher.Constraint("Coincident", 11, 3, 7, 3),
    Sketcher.Constraint("Coincident", 12, 3, 6, 3),
    Sketcher.Constraint("Coincident", 13, 3, 5, 3),
    Sketcher.Constraint("Equal", 1, 3),
    Sketcher.Constraint("Equal", 3, 5),
    Sketcher.Constraint("Equal", 2, 6),
    Sketcher.Constraint("Equal", 5, 7),
    Sketcher.Constraint("Equal", 13, 15),
    Sketcher.Constraint("Symmetric", 1, 3, 5, 3, -1, 1),
    Sketcher.Constraint("Symmetric", 2, 3, 6, 3, -1),
    Sketcher.Constraint("Radius", 1, 6.0),
    Sketcher.Constraint("Radius", 9, 4.0),
    Sketcher.Constraint("Radius", 2, 71.25),
    Sketcher.Constraint("DistanceX", -1, 1, 1, 3, 17.0),
    Sketcher.Constraint("DistanceY", 2, 3, 6, 3, 47.5),
])
pocket2 = body.newObject("PartDesign::Pocket", "Pocket001")
pocket2.Profile = sketch5
pocket2.Length = 2

sketch6 = body.newObject("Sketcher::SketchObject", "Sketch005")
sketch6.AttachmentSupport = (doc.getObject("XY_Plane"), [""])
sketch6.MapMode = "FlatFace"
sketch6.AttachmentOffset = App.Placement(V(0, 0, -25), App.Rotation())
sketch6.addGeometry(Part.Circle(V(17, 0, 0), V(0, 0, 1), 18), False)
sketch6.addConstraint([
    Sketcher.Constraint("PointOnObject", 0, 3, -1),
    Sketcher.Constraint("Diameter", 0, 36.936558),
    Sketcher.Constraint("DistanceX", -1, 1, 0, 3, 16.756704),
])
pad4 = body.newObject("PartDesign::Pad", "Pad003")
pad4.Profile = sketch6
pad4.Length = 20

sketch7 = body.newObject("Sketcher::SketchObject", "Sketch006")
sketch7.AttachmentSupport = (doc.getObject("XY_Plane"), [""])
sketch7.MapMode = "FlatFace"
sketch7.AttachmentOffset = App.Placement(V(0, 0, -25), App.Rotation())
sketch7.addGeometry(Part.Circle(V(17, 0, 0), V(0, 0, 1), 13), False)
sketch7.addConstraint([
    Sketcher.Constraint("PointOnObject", 0, 3, -1),
    Sketcher.Constraint("Diameter", 0, 26.936558),
    Sketcher.Constraint("DistanceX", -1, 1, 0, 3, 16.756704),
])
pocket3 = body.newObject("PartDesign::Pocket", "Pocket002")
pocket3.Profile = sketch7
pocket3.Length = 16
pocket3.Reversed = True

sketch8 = body.newObject("Sketcher::SketchObject", "Sketch007")
sketch8.AttachmentSupport = (doc.getObject("XY_Plane"), [""])
sketch8.MapMode = "FlatFace"
sketch8.AttachmentOffset = App.Placement(V(0, 0, -25), App.Rotation())
sketch8.addGeometry(Part.Circle(V(-46, 0, 0), V(0, 0, 1), 13), False)
sketch8.addConstraint([
    Sketcher.Constraint("PointOnObject", 0, 3, -1),
    Sketcher.Constraint("Diameter", 0, 26.936558),
    Sketcher.Constraint("DistanceX", 0, 3, -1, 1, 45.563544),
])
pocket4 = body.newObject("PartDesign::Pocket", "Pocket003")
pocket4.Profile = sketch8
pocket4.Length = 25
pocket4.Reversed = True

sketch9 = body.newObject("Sketcher::SketchObject", "Sketch008")
sketch9.AttachmentSupport = (doc.getObject("XY_Plane"), [""])
sketch9.MapMode = "FlatFace"
sketch9.AttachmentOffset = App.Placement(V(0, 0, -25), App.Rotation())
sketch9.addGeometry([
    Part.Circle(V(60, 67.5, 0), V(0, 0, 1), 6),
    Part.Circle(V(60, 67.5, 0), V(0, 0, 1), 4),
    Part.Circle(V(-60, 67.5, 0), V(0, 0, 1), 6),
    Part.Circle(V(-60, 67.5, 0), V(0, 0, 1), 4),
    Part.Circle(V(-60, -67.5, 0), V(0, 0, 1), 6),
    Part.Circle(V(-60, -67.5, 0), V(0, 0, 1), 4),
    Part.Circle(V(60, -67.5, 0), V(0, 0, 1), 6),
    Part.Circle(V(60, -67.5, 0), V(0, 0, 1), 4),
], False)
sketch9.addConstraint([
    Sketcher.Constraint("Coincident", 1, 3, 0, 3),
    Sketcher.Constraint("Coincident", 3, 3, 2, 3),
    Sketcher.Constraint("Coincident", 5, 3, 4, 3),
    Sketcher.Constraint("Coincident", 7, 3, 6, 3),
    Sketcher.Constraint("Equal", 0, 2),
    Sketcher.Constraint("Equal", 1, 3),
    Sketcher.Constraint("Equal", 2, 4),
    Sketcher.Constraint("Equal", 3, 5),
    Sketcher.Constraint("Equal", 4, 6),
    Sketcher.Constraint("Equal", 5, 7),
    Sketcher.Constraint("Symmetric", 0, 3, 4, 3, -1, 1),
    Sketcher.Constraint("Symmetric", 2, 3, 6, 3, -1, 1),
    Sketcher.Constraint("Symmetric", 0, 3, 2, 3, -2),
    Sketcher.Constraint("Diameter", 0, 12.0),
    Sketcher.Constraint("Diameter", 1, 8.0),
    Sketcher.Constraint("DistanceX", -1, 1, 0, 3, 60.0),
    Sketcher.Constraint("DistanceY", 4, 3, 2, 3, 135.0),
])
pocket5 = body.newObject("PartDesign::Pocket", "Pocket004")
pocket5.Profile = sketch9
pocket5.Length = 6
pocket5.Reversed = True

sketch10 = body.newObject("Sketcher::SketchObject", "Sketch009")
sketch10.AttachmentSupport = (doc.getObject("XY_Plane"), [""])
sketch10.MapMode = "FlatFace"
sketch10.AttachmentOffset = App.Placement(V(0, 0, -9), App.Rotation())
sketch10.addGeometry([
    Part.LineSegment(V(11, -13.5, 0), V(11, -17.5, 0)),
    Part.ArcOfCircle(Part.Circle(V(16.8, 0, 0), V(0, 0, 1), 18.5), math.radians(-172), math.radians(-108)),
    Part.LineSegment(V(-1.5, -2.5, 0), V(14, -2.5, 0)),
    Part.ArcOfCircle(Part.Circle(V(14, -5.5, 0), V(0, 0, 1), 3), math.radians(0), math.radians(90)),
    Part.LineSegment(V(17, -5.5, 0), V(17, -7.5, 0)),
    Part.ArcOfCircle(Part.Circle(V(14, -7.5, 0), V(0, 0, 1), 3), math.radians(-90), math.radians(0)),
    Part.ArcOfCircle(Part.Circle(V(14, -13.5, 0), V(0, 0, 1), 3), math.radians(90), math.radians(156)),
    Part.ArcOfCircle(Part.Circle(V(14, -13.5, 0), V(0, 0, 1), 3), math.radians(156), math.radians(180)),
    Part.ArcOfCircle(Part.Circle(V(16.8, 0, 0), V(0, 0, 1), 18.5), math.radians(108), math.radians(172)),
    Part.LineSegment(V(11, 17.5, 0), V(11, 13.5, 0)),
    Part.ArcOfCircle(Part.Circle(V(14, 13.5, 0), V(0, 0, 1), 3), math.radians(180), math.radians(204)),
    Part.ArcOfCircle(Part.Circle(V(14, 13.5, 0), V(0, 0, 1), 3), math.radians(-156), math.radians(-90)),
    Part.ArcOfCircle(Part.Circle(V(14, 7.5, 0), V(0, 0, 1), 3), math.radians(0), math.radians(90)),
    Part.LineSegment(V(17, 7.5, 0), V(17, 5.5, 0)),
    Part.ArcOfCircle(Part.Circle(V(14, 5.5, 0), V(0, 0, 1), 3), math.radians(-90), math.radians(0)),
    Part.LineSegment(V(14, 2.5, 0), V(-1.5, 2.5, 0)),
], False)
sketch10.addConstraint([
    Sketcher.Constraint("Coincident", 0, 2, 1, 2),
    Sketcher.Constraint("Coincident", 1, 1, 2, 1),
    Sketcher.Constraint("Tangent", 2, 2, 3, 2),
    Sketcher.Constraint("Tangent", 3, 1, 4, 1),
    Sketcher.Constraint("Tangent", 4, 2, 5, 2),
    Sketcher.Constraint("Tangent", 5, 1, 6, 1),
    Sketcher.Constraint("Tangent", 6, 2, 7, 1),
    Sketcher.Constraint("Tangent", 7, 2, 0, 1),
    Sketcher.Constraint("Coincident", 8, 1, 9, 1),
    Sketcher.Constraint("Tangent", 9, 2, 10, 1),
    Sketcher.Constraint("Tangent", 10, 2, 11, 1),
    Sketcher.Constraint("Tangent", 11, 2, 12, 2),
    Sketcher.Constraint("Tangent", 12, 1, 13, 1),
    Sketcher.Constraint("Tangent", 13, 2, 14, 2),
    Sketcher.Constraint("Tangent", 14, 1, 15, 1),
    Sketcher.Constraint("Coincident", 15, 2, 8, 2),
    Sketcher.Constraint("Vertical", 0),
    Sketcher.Constraint("Horizontal", 2),
    Sketcher.Constraint("Vertical", 4),
    Sketcher.Constraint("Vertical", 9),
    Sketcher.Constraint("Vertical", 13),
    Sketcher.Constraint("Horizontal", 15),
    Sketcher.Constraint("Coincident", 8, 3, 1, 3),
    Sketcher.Constraint("Equal", 3, 5),
    Sketcher.Constraint("Equal", 5, 6),
    Sketcher.Constraint("Equal", 6, 7),
    Sketcher.Constraint("Equal", 1, 8),
    Sketcher.Constraint("Equal", 7, 10),
    Sketcher.Constraint("Equal", 10, 11),
    Sketcher.Constraint("Equal", 11, 12),
    Sketcher.Constraint("Equal", 12, 14),
    Sketcher.Constraint("Symmetric", 6, 3, 10, 3, -1),
    Sketcher.Constraint("Symmetric", 3, 3, 14, 3, -1),
    Sketcher.Constraint("PointOnObject", 1, 3, -1),
    Sketcher.Constraint("Vertical", 5, 3, 6, 3),
    Sketcher.Constraint("Vertical", 6, 2, 10, 2),
    Sketcher.Constraint("Radius", 3, 3.0),
    Sketcher.Constraint("DistanceY", 4, 2, 4, 1, 2.0),
    Sketcher.Constraint("DistanceX", -1, 1, 3, 3, 14.0),
    Sketcher.Constraint("DistanceY", 3, 3, 10, 3, 19.0),
    Sketcher.Constraint("Radius", 1, 18.468279),
    Sketcher.Constraint("DistanceX", 2, 1, 2, 2, 15.541584),
    Sketcher.Constraint("DistanceX", 15, 2, 10, 2, 12.795229),
])
pocket6 = body.newObject("PartDesign::Pocket", "Pocket005")
pocket6.Profile = sketch10
pocket6.Length = 9
doc.recompute()

fillet = body.newObject("PartDesign::Fillet", "Fillet")
fillet.Base = (pocket6, edges_at(pocket6, [
    (-57, -23.703, -18),
    (-57, 23.703, -18),
    (25, 0, -5),
    (25, 16.527, -11.5),
    (25, -16.527, -11.5),
    (25, -27.887, -18),
    (35.225, 0, -18),
]))
fillet.Radius = 3
doc.recompute()

fillet2 = body.newObject("PartDesign::Fillet", "Fillet001")
fillet2.Base = (fillet, edges_at(fillet, [(0, -90, -25)]))
fillet2.Radius = 2

sketch11 = body.newObject("Sketcher::SketchObject", "Sketch010")
sketch11.AttachmentSupport = (doc.getObject("XY_Plane"), [""])
sketch11.MapMode = "FlatFace"
sketch11.addGeometry([
    Part.LineSegment(V(15, 108, 0), V(15, 120, 0)),
    Part.ArcOfCircle(Part.Circle(V(0, 120, 0), V(0, 0, 1), 15), math.radians(0), math.radians(180)),
    Part.LineSegment(V(-15, 120, 0), V(-15, 108, 0)),
    Part.LineSegment(V(-15, 108, 0), V(-33, 90, 0)),
    Part.LineSegment(V(-33, 90, 0), V(-70, 90, 0)),
    Part.ArcOfCircle(Part.Circle(V(-70, 80, 0), V(0, 0, 1), 10), math.radians(90), math.radians(180)),
    Part.LineSegment(V(-80, 80, 0), V(-80, -80, 0)),
    Part.ArcOfCircle(Part.Circle(V(-70, -80, 0), V(0, 0, 1), 10), math.radians(180), math.radians(270)),
    Part.LineSegment(V(-70, -90, 0), V(-33, -90, 0)),
    Part.LineSegment(V(-33, -90, 0), V(-15, -108, 0)),
    Part.LineSegment(V(-15, -108, 0), V(-15, -120, 0)),
    Part.ArcOfCircle(Part.Circle(V(0, -120, 0), V(0, 0, 1), 15), math.radians(180), math.radians(360)),
    Part.LineSegment(V(15, -120, 0), V(15, -108, 0)),
    Part.LineSegment(V(15, -108, 0), V(33, -90, 0)),
    Part.LineSegment(V(33, -90, 0), V(70, -90, 0)),
    Part.ArcOfCircle(Part.Circle(V(70, -80, 0), V(0, 0, 1), 10), math.radians(-90), math.radians(0)),
    Part.LineSegment(V(80, -80, 0), V(80, 80, 0)),
    Part.ArcOfCircle(Part.Circle(V(70, 80, 0), V(0, 0, 1), 10), math.radians(0), math.radians(90)),
    Part.LineSegment(V(70, 90, 0), V(33, 90, 0)),
    Part.LineSegment(V(33, 90, 0), V(15, 108, 0)),
    Part.Circle(V(-60, -67.5, 0), V(0, 0, 1), 4),
    Part.Circle(V(0, -120, 0), V(0, 0, 1), 6),
    Part.Circle(V(60, -67.5, 0), V(0, 0, 1), 4),
    Part.Circle(V(-60, 67.5, 0), V(0, 0, 1), 4),
    Part.LineSegment(V(-60, -40.3, 0), V(-60, 40.3, 0)),
    Part.ArcOfCircle(Part.Circle(V(-50, 40.3, 0), V(0, 0, 1), 10), math.radians(128), math.radians(180)),
    Part.ArcOfCircle(Part.Circle(V(0, -23.8, 0), V(0, 0, 1), 91.2), math.radians(52), math.radians(128)),
    Part.ArcOfCircle(Part.Circle(V(50, 40.3, 0), V(0, 0, 1), 10), math.radians(0), math.radians(52)),
    Part.LineSegment(V(60, 40.3, 0), V(60, -40.3, 0)),
    Part.ArcOfCircle(Part.Circle(V(50, -40.3, 0), V(0, 0, 1), 10), math.radians(-52), math.radians(0)),
    Part.ArcOfCircle(Part.Circle(V(0, 23.8, 0), V(0, 0, 1), 91.2), math.radians(-128), math.radians(-52)),
    Part.ArcOfCircle(Part.Circle(V(-50, -40.3, 0), V(0, 0, 1), 10), math.radians(180), math.radians(232)),
    Part.Circle(V(0, 120, 0), V(0, 0, 1), 6),
    Part.Circle(V(60, 67.5, 0), V(0, 0, 1), 4),
], False)
sketch11.addConstraint([
    Sketcher.Constraint("Tangent", 0, 2, 1, 1),
    Sketcher.Constraint("Tangent", 1, 2, 2, 1),
    Sketcher.Constraint("Coincident", 2, 2, 3, 1),
    Sketcher.Constraint("Coincident", 3, 2, 4, 1),
    Sketcher.Constraint("Tangent", 4, 2, 5, 1),
    Sketcher.Constraint("Tangent", 5, 2, 6, 1),
    Sketcher.Constraint("Tangent", 6, 2, 7, 1),
    Sketcher.Constraint("Tangent", 7, 2, 8, 1),
    Sketcher.Constraint("Coincident", 8, 2, 9, 1),
    Sketcher.Constraint("Coincident", 9, 2, 10, 1),
    Sketcher.Constraint("Tangent", 10, 2, 11, 1),
    Sketcher.Constraint("Tangent", 11, 2, 12, 1),
    Sketcher.Constraint("Coincident", 12, 2, 13, 1),
    Sketcher.Constraint("Coincident", 13, 2, 14, 1),
    Sketcher.Constraint("Tangent", 14, 2, 15, 1),
    Sketcher.Constraint("Tangent", 15, 2, 16, 1),
    Sketcher.Constraint("Tangent", 16, 2, 17, 1),
    Sketcher.Constraint("Tangent", 17, 2, 18, 1),
    Sketcher.Constraint("Coincident", 18, 2, 19, 1),
    Sketcher.Constraint("Coincident", 19, 2, 0, 1),
    Sketcher.Constraint("Tangent", 24, 2, 25, 2),
    Sketcher.Constraint("Tangent", 25, 1, 26, 2),
    Sketcher.Constraint("Tangent", 26, 1, 27, 2),
    Sketcher.Constraint("Tangent", 27, 1, 28, 1),
    Sketcher.Constraint("Tangent", 28, 2, 29, 2),
    Sketcher.Constraint("Tangent", 29, 1, 30, 2),
    Sketcher.Constraint("Tangent", 30, 1, 31, 2),
    Sketcher.Constraint("Tangent", 31, 1, 24, 1),
    Sketcher.Constraint("Vertical", 0),
    Sketcher.Constraint("Vertical", 2),
    Sketcher.Constraint("Horizontal", 4),
    Sketcher.Constraint("Vertical", 6),
    Sketcher.Constraint("Horizontal", 8),
    Sketcher.Constraint("Vertical", 10),
    Sketcher.Constraint("Vertical", 12),
    Sketcher.Constraint("Horizontal", 14),
    Sketcher.Constraint("Vertical", 16),
    Sketcher.Constraint("Horizontal", 18),
    Sketcher.Constraint("Vertical", 24),
    Sketcher.Constraint("Vertical", 28),
    Sketcher.Constraint("Coincident", 21, 3, 11, 3),
    Sketcher.Constraint("Coincident", 32, 3, 1, 3),
    Sketcher.Constraint("Equal", 5, 7),
    Sketcher.Constraint("Equal", 1, 11),
    Sketcher.Constraint("Equal", 7, 15),
    Sketcher.Constraint("Equal", 15, 17),
    Sketcher.Constraint("Equal", 20, 22),
    Sketcher.Constraint("Equal", 22, 23),
    Sketcher.Constraint("Equal", 17, 25),
    Sketcher.Constraint("Equal", 25, 27),
    Sketcher.Constraint("Equal", 27, 29),
    Sketcher.Constraint("Equal", 26, 30),
    Sketcher.Constraint("Equal", 29, 31),
    Sketcher.Constraint("Equal", 21, 32),
    Sketcher.Constraint("Equal", 23, 33),
    Sketcher.Constraint("Symmetric", 1, 3, 11, 3, -1, 1),
    Sketcher.Constraint("Symmetric", 5, 3, 15, 3, -1, 1),
    Sketcher.Constraint("Symmetric", 22, 3, 23, 3, -1, 1),
    Sketcher.Constraint("Symmetric", 25, 3, 29, 3, -1, 1),
    Sketcher.Constraint("Symmetric", 20, 3, 33, 3, -1, 1),
    Sketcher.Constraint("Symmetric", 8, 2, 18, 2, -1, 1),
    Sketcher.Constraint("Symmetric", 20, 3, 22, 3, -2),
    Sketcher.Constraint("Symmetric", 9, 2, 12, 2, -2),
    Sketcher.Constraint("Symmetric", 8, 2, 13, 2, -2),
    Sketcher.Constraint("Symmetric", 26, 3, 30, 3, -1),
    Sketcher.Constraint("Perpendicular", 3, 9),
    Sketcher.Constraint("Perpendicular", 9, 13),
    Sketcher.Constraint("Perpendicular", 13, 19),
    Sketcher.Constraint("Horizontal", 2, 2, 19, 2),
    Sketcher.Constraint("Vertical", 23, 3, 24, 2),
    Sketcher.Constraint("Diameter", 20, 8.0),
    Sketcher.Constraint("Diameter", 21, 12.0),
    Sketcher.Constraint("Radius", 1, 15.0),
    Sketcher.Constraint("Radius", 5, 10.0),
    Sketcher.Constraint("DistanceX", 4, 2, 4, 1, 37.0),
    Sketcher.Constraint("DistanceY", 0, 1, 0, 2, 12.0),
    Sketcher.Constraint("DistanceY", 6, 2, 6, 1, 160.0),
    Sketcher.Constraint("Radius", 26, 91.25),
    Sketcher.Constraint("DistanceY", -1, 1, 1, 3, 120.0),
    Sketcher.Constraint("DistanceX", 20, 3, -1, 1, 60.0),
    Sketcher.Constraint("DistanceY", 20, 3, 23, 3, 135.0),
    Sketcher.Constraint("DistanceY", 26, 3, 30, 3, 47.5),
])
pad5 = body.newObject("PartDesign::Pad", "Pad004")
pad5.Profile = sketch11
pad5.Type = "UpToLast"

doc.recompute()
